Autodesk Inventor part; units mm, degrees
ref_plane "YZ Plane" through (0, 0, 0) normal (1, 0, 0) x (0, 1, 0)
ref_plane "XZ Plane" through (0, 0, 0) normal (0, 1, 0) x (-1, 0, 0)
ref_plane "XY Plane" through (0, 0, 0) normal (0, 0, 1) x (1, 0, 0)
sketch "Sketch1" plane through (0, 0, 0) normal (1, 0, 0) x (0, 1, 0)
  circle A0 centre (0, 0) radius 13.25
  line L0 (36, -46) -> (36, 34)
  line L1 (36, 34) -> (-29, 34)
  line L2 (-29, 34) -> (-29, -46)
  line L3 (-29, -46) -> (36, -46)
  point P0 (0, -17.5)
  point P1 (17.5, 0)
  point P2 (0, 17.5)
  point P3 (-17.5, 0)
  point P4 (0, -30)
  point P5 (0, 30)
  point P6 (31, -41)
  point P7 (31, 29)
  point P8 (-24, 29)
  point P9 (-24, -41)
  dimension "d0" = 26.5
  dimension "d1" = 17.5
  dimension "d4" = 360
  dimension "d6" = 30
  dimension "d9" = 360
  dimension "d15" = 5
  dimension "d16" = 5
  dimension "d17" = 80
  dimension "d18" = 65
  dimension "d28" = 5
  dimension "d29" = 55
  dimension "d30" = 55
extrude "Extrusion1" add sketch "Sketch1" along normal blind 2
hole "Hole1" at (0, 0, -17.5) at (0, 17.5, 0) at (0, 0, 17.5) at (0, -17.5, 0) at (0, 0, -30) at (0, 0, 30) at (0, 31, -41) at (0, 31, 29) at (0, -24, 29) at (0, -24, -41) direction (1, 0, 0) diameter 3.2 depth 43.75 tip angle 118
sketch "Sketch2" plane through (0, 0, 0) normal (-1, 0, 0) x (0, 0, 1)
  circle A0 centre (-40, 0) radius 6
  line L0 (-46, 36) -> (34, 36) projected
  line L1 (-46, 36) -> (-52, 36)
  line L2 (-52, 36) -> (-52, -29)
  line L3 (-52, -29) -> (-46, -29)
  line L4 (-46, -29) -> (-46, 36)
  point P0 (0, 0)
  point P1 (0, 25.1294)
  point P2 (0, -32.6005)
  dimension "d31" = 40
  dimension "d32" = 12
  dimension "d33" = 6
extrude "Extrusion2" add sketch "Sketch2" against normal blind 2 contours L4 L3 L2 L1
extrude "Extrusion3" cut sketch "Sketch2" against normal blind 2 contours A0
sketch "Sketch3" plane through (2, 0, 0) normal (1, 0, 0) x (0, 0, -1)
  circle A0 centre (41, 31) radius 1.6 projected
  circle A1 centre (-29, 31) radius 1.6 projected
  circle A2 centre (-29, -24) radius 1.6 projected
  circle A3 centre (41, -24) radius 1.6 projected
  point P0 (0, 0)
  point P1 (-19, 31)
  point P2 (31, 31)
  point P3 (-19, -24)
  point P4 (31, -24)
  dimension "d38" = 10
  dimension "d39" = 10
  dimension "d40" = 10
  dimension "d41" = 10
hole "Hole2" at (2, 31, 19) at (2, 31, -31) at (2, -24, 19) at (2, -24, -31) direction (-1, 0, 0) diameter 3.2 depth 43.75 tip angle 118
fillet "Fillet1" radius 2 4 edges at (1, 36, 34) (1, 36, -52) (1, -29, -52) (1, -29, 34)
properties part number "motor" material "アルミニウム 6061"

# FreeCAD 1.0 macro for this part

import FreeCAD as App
import Part
import Sketcher


def edges_at(feature, points):
    """Names of the edges that pass closest to the given points."""
    edges = feature.Shape.Edges
    near = lambda p: min(range(len(edges)), key=lambda i: edges[i].distToShape(Part.Vertex(*p))[0])
    return sorted({f"Edge{near(p) + 1}" for p in points})


def add_polygon(sketch, points):
    """Adds a closed chain of lines whose ends are joined by coincident constraints."""
    first, n = sketch.GeometryCount, len(points)
    for a, b in zip(points, points[1:] + points[:1]):
        sketch.addGeometry(Part.LineSegment(App.Vector(*a, 0), App.Vector(*b, 0)), False)
    for i in range(n):
        sketch.addConstraint(Sketcher.Constraint("Coincident", first + i, 2, first + (i + 1) % n, 1))

doc = App.newDocument("Part")
body = doc.addObject("PartDesign::Body", "Body")

# Sketch on YZ plane
sketch1 = body.newObject("Sketcher::SketchObject", "Sketch")
sketch1.AttachmentSupport = (doc.getObject("YZ_Plane"), [""])
sketch1.MapMode = "FlatFace"
add_polygon(sketch1, [(-29, -46), (36, -46), (36, 34), (-29, 34)])  # lines 0-3
sketch1.addGeometry(Part.Circle(App.Vector(0, 0, 0), App.Vector(0, 0, 1), 13.25), False)  # 4
sketch1.addConstraint(Sketcher.Constraint("Horizontal", 0))
sketch1.addConstraint(Sketcher.Constraint("Vertical", 1))
sketch1.addConstraint(Sketcher.Constraint("Horizontal", 2))
sketch1.addConstraint(Sketcher.Constraint("Vertical", 3))
sketch1.addConstraint(Sketcher.Constraint("Coincident", 4, 3, -1, 1))
sketch1.addConstraint(Sketcher.Constraint("Diameter", 4, 26.5))
sketch1.addConstraint(Sketcher.Constraint("DistanceX", 0, 1, 0, 2, 65.0))
sketch1.addConstraint(Sketcher.Constraint("DistanceY", 1, 1, 1, 2, 80.0))
sketch1.addConstraint(Sketcher.Constraint("DistanceX", -1, 1, 0, 2, 36.0))
sketch1.addConstraint(Sketcher.Constraint("DistanceY", 0, 2, -1, 1, 46.0))
pad1 = body.newObject("PartDesign::Pad", "Pad")
pad1.Profile = sketch1
pad1.Length = 2

# Sketch on YZ plane
sketch2 = body.newObject("Sketcher::SketchObject", "Sketch001")
sketch2.AttachmentSupport = (doc.getObject("YZ_Plane"), [""])
sketch2.MapMode = "FlatFace"
sketch2.addGeometry(Part.Circle(App.Vector(0, -17.5, 0), App.Vector(0, 0, 1), 1.6), False)
sketch2.addGeometry(Part.Circle(App.Vector(17.5, 0, 0), App.Vector(0, 0, 1), 1.6), False)
sketch2.addGeometry(Part.Circle(App.Vector(0, 17.5, 0), App.Vector(0, 0, 1), 1.6), False)
sketch2.addGeometry(Part.Circle(App.Vector(-17.5, 0, 0), App.Vector(0, 0, 1), 1.6), False)
sketch2.addGeometry(Part.Circle(App.Vector(0, -30, 0), App.Vector(0, 0, 1), 1.6), False)
sketch2.addGeometry(Part.Circle(App.Vector(0, 30, 0), App.Vector(0, 0, 1), 1.6), False)
sketch2.addGeometry(Part.Circle(App.Vector(31, -41, 0), App.Vector(0, 0, 1), 1.6), False)
sketch2.addGeometry(Part.Circle(App.Vector(31, 29, 0), App.Vector(0, 0, 1), 1.6), False)
sketch2.addGeometry(Part.Circle(App.Vector(-24, 29, 0), App.Vector(0, 0, 1), 1.6), False)
sketch2.addGeometry(Part.Circle(App.Vector(-24, -41, 0), App.Vector(0, 0, 1), 1.6), False)
sketch2.addConstraint(Sketcher.Constraint("Equal", 0, 1))
sketch2.addConstraint(Sketcher.Constraint("Equal", 1, 2))
sketch2.addConstraint(Sketcher.Constraint("Equal", 2, 3))
sketch2.addConstraint(Sketcher.Constraint("Equal", 3, 4))
sketch2.addConstraint(Sketcher.Constraint("Equal", 4, 5))
sketch2.addConstraint(Sketcher.Constraint("Equal", 5, 6))
sketch2.addConstraint(Sketcher.Constraint("Equal", 6, 7))
sketch2.addConstraint(Sketcher.Constraint("Equal", 7, 8))
sketch2.addConstraint(Sketcher.Constraint("Equal", 8, 9))
sketch2.addConstraint(Sketcher.Constraint("Symmetric", 0, 3, 2, 3, -1, 1))
sketch2.addConstraint(Sketcher.Constraint("Symmetric", 1, 3, 3, 3, -1, 1))
sketch2.addConstraint(Sketcher.Constraint("Symmetric", 4, 3, 5, 3, -1, 1))
sketch2.addConstraint(Sketcher.Constraint("PointOnObject", 0, 3, -2))
sketch2.addConstraint(Sketcher.Constraint("PointOnObject", 1, 3, -1))
sketch2.addConstraint(Sketcher.Constraint("PointOnObject", 4, 3, -2))
sketch2.addConstraint(Sketcher.Constraint("Horizontal", 7, 3, 8, 3))
sketch2.addConstraint(Sketcher.Constraint("Horizontal", 6, 3, 9, 3))
sketch2.addConstraint(Sketcher.Constraint("Vertical", 6, 3, 7, 3))
sketch2.addConstraint(Sketcher.Constraint("Vertical", 8, 3, 9, 3))
sketch2.addConstraint(Sketcher.Constraint("Diameter", 0, 3.2))
sketch2.addConstraint(Sketcher.Constraint("DistanceY", 4, 3, -1, 1, 30.0))
sketch2.addConstraint(Sketcher.Constraint("DistanceX", -1, 1, 6, 3, 31.0))
sketch2.addConstraint(Sketcher.Constraint("DistanceY", 6, 3, -1, 1, 41.0))
sketch2.addConstraint(Sketcher.Constraint("DistanceY", -1, 1, 7, 3, 29.0))
sketch2.addConstraint(Sketcher.Constraint("DistanceX", 8, 3, -1, 1, 24.0))
sketch2.addConstraint(Sketcher.Constraint("DistanceY", 0, 3, 2, 3, 35.0))
sketch2.addConstraint(Sketcher.Constraint("DistanceX", 3, 3, 1, 3, 35.0))
doc.recompute()
hole = body.newObject("PartDesign::Hole", "Hole")
hole.Profile = sketch2
hole.ThreadType = "None"
hole.Diameter = 3.2
hole.DepthType = "Dimension"
hole.Depth = 43.75
hole.DrillPoint = "Angled"
hole.DrillPointAngle = 118
hole.Reversed = True

# Sketch on YZ plane
sketch3 = body.newObject("Sketcher::SketchObject", "Sketch002")
sketch3.AttachmentSupport = (doc.getObject("YZ_Plane"), [""])
sketch3.MapMode = "FlatFace"
add_polygon(sketch3, [(-29, -46), (36, -46), (36, -52), (-29, -52)])  # lines 0-3
sketch3.addConstraint(Sketcher.Constraint("Horizontal", 0))
sketch3.addConstraint(Sketcher.Constraint("Vertical", 1))
sketch3.addConstraint(Sketcher.Constraint("Horizontal", 2))
sketch3.addConstraint(Sketcher.Constraint("Vertical", 3))
sketch3.addConstraint(Sketcher.Constraint("DistanceY", 1, 2, 1, 1, 6.0))
sketch3.addConstraint(Sketcher.Constraint("DistanceX", 0, 1, 0, 2, 65.0))
sketch3.addConstraint(Sketcher.Constraint("DistanceX", -1, 1, 0, 2, 36.0))
sketch3.addConstraint(Sketcher.Constraint("DistanceY", 0, 2, -1, 1, 46.0))
pad2 = body.newObject("PartDesign::Pad", "Pad001")
pad2.Profile = sketch3
pad2.Length = 2

# Sketch on YZ plane
sketch4 = body.newObject("Sketcher::SketchObject", "Sketch003")
sketch4.AttachmentSupport = (doc.getObject("YZ_Plane"), [""])
sketch4.MapMode = "FlatFace"
sketch4.addGeometry(Part.Circle(App.Vector(0, -40, 0), App.Vector(0, 0, 1), 6), False)
sketch4.addConstraint(Sketcher.Constraint("PointOnObject", 0, 3, -2))
sketch4.addConstraint(Sketcher.Constraint("Diameter", 0, 12.0))
sketch4.addConstraint(Sketcher.Constraint("DistanceY", 0, 3, -1, 1, 40.0))
pocket1 = body.newObject("PartDesign::Pocket", "Pocket")
pocket1.Profile = sketch4
pocket1.Length = 2
pocket1.Reversed = True

# Sketch on YZ plane
sketch5 = body.newObject("Sketcher::SketchObject", "Sketch004")
sketch5.AttachmentSupport = (doc.getObject("YZ_Plane"), [""])
sketch5.MapMode = "FlatFace"
sketch5.AttachmentOffset = App.Placement(App.Vector(0, 0, 2), App.Rotation())
sketch5.addGeometry(Part.Circle(App.Vector(31, 19, 0), App.Vector(0, 0, 1), 1.6), False)
sketch5.addGeometry(Part.Circle(App.Vector(31, -31, 0), App.Vector(0, 0, 1), 1.6), False)
sketch5.addGeometry(Part.Circle(App.Vector(-24, 19, 0), App.Vector(0, 0, 1), 1.6), False)
sketch5.addGeometry(Part.Circle(App.Vector(-24, -31, 0), App.Vector(0, 0, 1), 1.6), False)
sketch5.addConstraint(Sketcher.Constraint("Equal", 0, 1))
sketch5.addConstraint(Sketcher.Constraint("Equal", 1, 2))
sketch5.addConstraint(Sketcher.Constraint("Equal", 2, 3))
sketch5.addConstraint(Sketcher.Constraint("Horizontal", 0, 3, 2, 3))
sketch5.addConstraint(Sketcher.Constraint("Horizontal", 1, 3, 3, 3))
sketch5.addConstraint(Sketcher.Constraint("Vertical", 0, 3, 1, 3))
sketch5.addConstraint(Sketcher.Constraint("Vertical", 2, 3, 3, 3))
sketch5.addConstraint(Sketcher.Constraint("Diameter", 0, 3.2))
sketch5.addConstraint(Sketcher.Constraint("DistanceX", -1, 1, 0, 3, 31.0))
sketch5.addConstraint(Sketcher.Constraint("DistanceY", -1, 1, 0, 3, 19.0))
sketch5.addConstraint(Sketcher.Constraint("DistanceY", 1, 3, -1, 1, 31.0))
sketch5.addConstraint(Sketcher.Constraint("DistanceX", 2, 3, -1, 1, 24.0))
doc.recompute()
hole2 = body.newObject("PartDesign::Hole", "Hole001")
hole2.Profile = sketch5
hole2.ThreadType = "None"
hole2.Diameter = 3.2
hole2.DepthType = "Dimension"
hole2.Depth = 43.75
hole2.DrillPoint = "Angled"
hole2.DrillPointAngle = 118
doc.recompute()

fillet = body.newObject("PartDesign::Fillet", "Fillet")
fillet.Base = (hole2, edges_at(hole2, [
    (1, 36, 34),
    (1, 36, -52),
    (1, -29, -52),
    (1, -29, 34),
]))
fillet.Radius = 2

doc.recompute()
